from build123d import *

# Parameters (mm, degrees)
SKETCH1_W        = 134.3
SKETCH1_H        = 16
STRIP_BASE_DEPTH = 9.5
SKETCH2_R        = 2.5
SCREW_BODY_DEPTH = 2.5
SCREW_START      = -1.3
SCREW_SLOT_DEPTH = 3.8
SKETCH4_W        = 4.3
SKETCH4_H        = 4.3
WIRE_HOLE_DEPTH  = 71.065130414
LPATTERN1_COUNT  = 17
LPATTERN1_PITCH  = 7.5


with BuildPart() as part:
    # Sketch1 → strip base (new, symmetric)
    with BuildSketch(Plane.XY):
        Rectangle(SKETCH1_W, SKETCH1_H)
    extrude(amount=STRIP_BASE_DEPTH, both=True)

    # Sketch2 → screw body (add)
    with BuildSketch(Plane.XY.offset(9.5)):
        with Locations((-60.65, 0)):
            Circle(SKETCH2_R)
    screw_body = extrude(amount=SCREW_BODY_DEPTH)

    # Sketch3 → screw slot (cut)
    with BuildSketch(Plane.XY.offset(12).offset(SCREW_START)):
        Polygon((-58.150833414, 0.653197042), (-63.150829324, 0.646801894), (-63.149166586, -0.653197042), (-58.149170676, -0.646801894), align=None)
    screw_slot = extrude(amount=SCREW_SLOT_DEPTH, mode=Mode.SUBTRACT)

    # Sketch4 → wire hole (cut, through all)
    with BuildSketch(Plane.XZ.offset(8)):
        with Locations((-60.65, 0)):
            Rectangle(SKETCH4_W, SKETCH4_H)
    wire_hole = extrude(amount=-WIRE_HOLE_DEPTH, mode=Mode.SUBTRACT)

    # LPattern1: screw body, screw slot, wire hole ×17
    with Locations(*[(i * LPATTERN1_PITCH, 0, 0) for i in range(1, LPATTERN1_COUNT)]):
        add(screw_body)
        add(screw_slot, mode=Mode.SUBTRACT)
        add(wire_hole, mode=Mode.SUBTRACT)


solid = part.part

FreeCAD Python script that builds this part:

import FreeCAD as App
import Part
import Sketcher

V = App.Vector

doc = App.newDocument("Part")
params = doc.addObject("Spreadsheet::Sheet", "Params")
for row, (alias, value) in enumerate([
    ("sketch1_height", "16 mm"),
    ("sketch1_width", "134.3 mm"),
    ("pad1_length", "19 mm"),
    ("sketch2_diameter", "5 mm"),
    ("pad2_length", "2.5 mm"),
    ("sketch3_length", "5 mm"),
    ("sketch3_length2", "1.3 mm"),
    ("pocket1_length", "3.8 mm"),
    ("sketch4_width", "4.3 mm"),
    ("linearpattern_pitch", "7.5 mm"),
], start=1):
    params.set(f"A{row}", alias)
    params.set(f"B{row}", "=" + value)
    params.setAlias(f"B{row}", alias)

body = doc.addObject("PartDesign::Body", "Body")

# Sketch on XY plane
sketch1 = doc.addObject("Sketcher::SketchObject", "Sketch")
body.addObject(sketch1)
sketch1.AttachmentSupport = (doc.XY_Plane, [""])
sketch1.MapMode = "FlatFace"
sketch1.addGeometry([
    Part.LineSegment(V(-67, 8, 0), V(-67, -8, 0)),
    Part.LineSegment(V(-67, -8, 0), V(67, -8, 0)),
    Part.LineSegment(V(67, -8, 0), V(67, 8, 0)),
    Part.LineSegment(V(67, 8, 0), V(-67, 8, 0)),
], False)
sketch1.addConstraint([
    Sketcher.Constraint("Coincident", 0, 2, 1, 1),
    Sketcher.Constraint("Coincident", 1, 2, 2, 1),
    Sketcher.Constraint("Coincident", 2, 2, 3, 1),
    Sketcher.Constraint("Coincident", 3, 2, 0, 1),
    Sketcher.Constraint("Vertical", 0),
    Sketcher.Constraint("Horizontal", 1),
    Sketcher.Constraint("Vertical", 2),
    Sketcher.Constraint("Horizontal", 3),
    Sketcher.Constraint("Symmetric", 0, 2, 2, 2, -1, 1),
    Sketcher.Constraint("DistanceY", 0, 2, 0, 1, 16.0),
    Sketcher.Constraint("DistanceX", 1, 1, 1, 2, 134.3),
])
sketch1.setExpression("Constraints[9]", "Params.sketch1_height")
sketch1.setExpression("Constraints[10]", "Params.sketch1_width")
pad1 = doc.addObject("PartDesign::Pad", "Pad")
body.addObject(pad1)
pad1.Profile = sketch1
pad1.setExpression("Length", "Params.pad1_length")
pad1.Midplane = True

# Sketch on XY plane
sketch2 = doc.addObject("Sketcher::SketchObject", "Sketch001")
body.addObject(sketch2)
sketch2.AttachmentSupport = (doc.XY_Plane, [""])
sketch2.MapMode = "FlatFace"
sketch2.AttachmentOffset = App.Placement(V(0, 0, 9.5), App.Rotation())
sketch2.addGeometry(Part.Circle(V(-60.6, 0, 0), V(0, 0, 1), 2.5), False)
sketch2.addConstraint([
    Sketcher.Constraint("PointOnObject", 0, 3, -1),
    Sketcher.Constraint("Diameter", 0, 5.0),
    Sketcher.Constraint("DistanceX", 0, 3, -1, 1, 60.65),
])
sketch2.setExpression("Constraints[1]", "Params.sketch2_diameter")
pad2 = doc.addObject("PartDesign::Pad", "Pad001")
body.addObject(pad2)
pad2.Profile = sketch2
pad2.setExpression("Length", "Params.pad2_length")

# Sketch on XY plane
sketch3 = doc.addObject("Sketcher::SketchObject", "Sketch002")
body.addObject(sketch3)
sketch3.AttachmentSupport = (doc.XY_Plane, [""])
sketch3.MapMode = "FlatFace"
sketch3.AttachmentOffset = App.Placement(V(0, 0, 10.7), App.Rotation())
sketch3.addGeometry([
    Part.LineSegment(V(-58.2, 0.7, 0), V(-63.2, 0.6, 0)),
    Part.LineSegment(V(-63.2, 0.6, 0), V(-63.1, -0.7, 0)),
    Part.LineSegment(V(-63.1, -0.7, 0), V(-58.1, -0.6, 0)),
    Part.LineSegment(V(-58.1, -0.6, 0), V(-58.2, 0.7, 0)),
], False)
sketch3.addConstraint([
    Sketcher.Constraint("Coincident", 0, 2, 1, 1),
    Sketcher.Constraint("Coincident", 1, 2, 2, 1),
    Sketcher.Constraint("Coincident", 2, 2, 3, 1),
    Sketcher.Constraint("Coincident", 3, 2, 0, 1),
    Sketcher.Constraint("Perpendicular", 0, 1),
    Sketcher.Constraint("Perpendicular", 1, 2),
    Sketcher.Constraint("Perpendicular", 2, 3),
    Sketcher.Constraint("Distance", 0, 5.0),
    Sketcher.Constraint("Distance", 1, 1.3),
    Sketcher.Constraint("DistanceY", -1, 1, 0, 2, 0.646802),
    Sketcher.Constraint("DistanceY", 2, 2, -1, 1, 0.646802),
    Sketcher.Constraint("DistanceX", 0, 2, -1, 1, 63.150829),
])
sketch3.setExpression("Constraints[7]", "Params.sketch3_length")
sketch3.setExpression("Constraints[8]", "Params.sketch3_length2")
pocket1 = doc.addObject("PartDesign::Pocket", "Pocket")
body.addObject(pocket1)
pocket1.Profile = sketch3
pocket1.setExpression("Length", "Params.pocket1_length")
pocket1.Reversed = True

# Sketch on XZ plane
sketch4 = doc.addObject("Sketcher::SketchObject", "Sketch003")
body.addObject(sketch4)
sketch4.AttachmentSupport = (doc.XZ_Plane, [""])
sketch4.MapMode = "FlatFace"
sketch4.AttachmentOffset = App.Placement(V(0, 0, 8), App.Rotation())
sketch4.addGeometry([
    Part.LineSegment(V(-62.8, 2.1, 0), V(-62.8, -2.1, 0)),
    Part.LineSegment(V(-62.8, -2.1, 0), V(-58.5, -2.1, 0)),
    Part.LineSegment(V(-58.5, -2.1, 0), V(-58.5, 2.1, 0)),
    Part.LineSegment(V(-58.5, 2.1, 0), V(-62.8, 2.1, 0)),
], False)
sketch4.addConstraint([
    Sketcher.Constraint("Coincident", 0, 2, 1, 1),
    Sketcher.Constraint("Coincident", 1, 2, 2, 1),
    Sketcher.Constraint("Coincident", 2, 2, 3, 1),
    Sketcher.Constraint("Coincident", 3, 2, 0, 1),
    Sketcher.Constraint("Vertical", 0),
    Sketcher.Constraint("Horizontal", 1),
    Sketcher.Constraint("Vertical", 2),
    Sketcher.Constraint("Horizontal", 3),
    Sketcher.Constraint("Equal", 3, 0),
    Sketcher.Constraint("DistanceX", 1, 1, 1, 2, 4.3),
    Sketcher.Constraint("DistanceX", 0, 2, -1, 1, 62.8),
    Sketcher.Constraint("DistanceY", 0, 2, -1, 1, 2.15),
])
sketch4.setExpression("Constraints[9]", "Params.sketch4_width")
pocket2 = doc.addObject("PartDesign::Pocket", "Pocket001")
body.addObject(pocket2)
pocket2.Profile = sketch4
pocket2.Type = "ThroughAll"
doc.recompute()

linearpattern = doc.addObject("PartDesign::LinearPattern", "LinearPattern")
body.addObject(linearpattern)
linearpattern.Originals = [pad2, pocket1, pocket2]
linearpattern.Direction = (doc.X_Axis, [""])
linearpattern.Mode = "offset"
linearpattern.setExpression("Offset", "Params.linearpattern_pitch")
linearpattern.Occurrences = 17
body.Tip = linearpattern

doc.recompute()
